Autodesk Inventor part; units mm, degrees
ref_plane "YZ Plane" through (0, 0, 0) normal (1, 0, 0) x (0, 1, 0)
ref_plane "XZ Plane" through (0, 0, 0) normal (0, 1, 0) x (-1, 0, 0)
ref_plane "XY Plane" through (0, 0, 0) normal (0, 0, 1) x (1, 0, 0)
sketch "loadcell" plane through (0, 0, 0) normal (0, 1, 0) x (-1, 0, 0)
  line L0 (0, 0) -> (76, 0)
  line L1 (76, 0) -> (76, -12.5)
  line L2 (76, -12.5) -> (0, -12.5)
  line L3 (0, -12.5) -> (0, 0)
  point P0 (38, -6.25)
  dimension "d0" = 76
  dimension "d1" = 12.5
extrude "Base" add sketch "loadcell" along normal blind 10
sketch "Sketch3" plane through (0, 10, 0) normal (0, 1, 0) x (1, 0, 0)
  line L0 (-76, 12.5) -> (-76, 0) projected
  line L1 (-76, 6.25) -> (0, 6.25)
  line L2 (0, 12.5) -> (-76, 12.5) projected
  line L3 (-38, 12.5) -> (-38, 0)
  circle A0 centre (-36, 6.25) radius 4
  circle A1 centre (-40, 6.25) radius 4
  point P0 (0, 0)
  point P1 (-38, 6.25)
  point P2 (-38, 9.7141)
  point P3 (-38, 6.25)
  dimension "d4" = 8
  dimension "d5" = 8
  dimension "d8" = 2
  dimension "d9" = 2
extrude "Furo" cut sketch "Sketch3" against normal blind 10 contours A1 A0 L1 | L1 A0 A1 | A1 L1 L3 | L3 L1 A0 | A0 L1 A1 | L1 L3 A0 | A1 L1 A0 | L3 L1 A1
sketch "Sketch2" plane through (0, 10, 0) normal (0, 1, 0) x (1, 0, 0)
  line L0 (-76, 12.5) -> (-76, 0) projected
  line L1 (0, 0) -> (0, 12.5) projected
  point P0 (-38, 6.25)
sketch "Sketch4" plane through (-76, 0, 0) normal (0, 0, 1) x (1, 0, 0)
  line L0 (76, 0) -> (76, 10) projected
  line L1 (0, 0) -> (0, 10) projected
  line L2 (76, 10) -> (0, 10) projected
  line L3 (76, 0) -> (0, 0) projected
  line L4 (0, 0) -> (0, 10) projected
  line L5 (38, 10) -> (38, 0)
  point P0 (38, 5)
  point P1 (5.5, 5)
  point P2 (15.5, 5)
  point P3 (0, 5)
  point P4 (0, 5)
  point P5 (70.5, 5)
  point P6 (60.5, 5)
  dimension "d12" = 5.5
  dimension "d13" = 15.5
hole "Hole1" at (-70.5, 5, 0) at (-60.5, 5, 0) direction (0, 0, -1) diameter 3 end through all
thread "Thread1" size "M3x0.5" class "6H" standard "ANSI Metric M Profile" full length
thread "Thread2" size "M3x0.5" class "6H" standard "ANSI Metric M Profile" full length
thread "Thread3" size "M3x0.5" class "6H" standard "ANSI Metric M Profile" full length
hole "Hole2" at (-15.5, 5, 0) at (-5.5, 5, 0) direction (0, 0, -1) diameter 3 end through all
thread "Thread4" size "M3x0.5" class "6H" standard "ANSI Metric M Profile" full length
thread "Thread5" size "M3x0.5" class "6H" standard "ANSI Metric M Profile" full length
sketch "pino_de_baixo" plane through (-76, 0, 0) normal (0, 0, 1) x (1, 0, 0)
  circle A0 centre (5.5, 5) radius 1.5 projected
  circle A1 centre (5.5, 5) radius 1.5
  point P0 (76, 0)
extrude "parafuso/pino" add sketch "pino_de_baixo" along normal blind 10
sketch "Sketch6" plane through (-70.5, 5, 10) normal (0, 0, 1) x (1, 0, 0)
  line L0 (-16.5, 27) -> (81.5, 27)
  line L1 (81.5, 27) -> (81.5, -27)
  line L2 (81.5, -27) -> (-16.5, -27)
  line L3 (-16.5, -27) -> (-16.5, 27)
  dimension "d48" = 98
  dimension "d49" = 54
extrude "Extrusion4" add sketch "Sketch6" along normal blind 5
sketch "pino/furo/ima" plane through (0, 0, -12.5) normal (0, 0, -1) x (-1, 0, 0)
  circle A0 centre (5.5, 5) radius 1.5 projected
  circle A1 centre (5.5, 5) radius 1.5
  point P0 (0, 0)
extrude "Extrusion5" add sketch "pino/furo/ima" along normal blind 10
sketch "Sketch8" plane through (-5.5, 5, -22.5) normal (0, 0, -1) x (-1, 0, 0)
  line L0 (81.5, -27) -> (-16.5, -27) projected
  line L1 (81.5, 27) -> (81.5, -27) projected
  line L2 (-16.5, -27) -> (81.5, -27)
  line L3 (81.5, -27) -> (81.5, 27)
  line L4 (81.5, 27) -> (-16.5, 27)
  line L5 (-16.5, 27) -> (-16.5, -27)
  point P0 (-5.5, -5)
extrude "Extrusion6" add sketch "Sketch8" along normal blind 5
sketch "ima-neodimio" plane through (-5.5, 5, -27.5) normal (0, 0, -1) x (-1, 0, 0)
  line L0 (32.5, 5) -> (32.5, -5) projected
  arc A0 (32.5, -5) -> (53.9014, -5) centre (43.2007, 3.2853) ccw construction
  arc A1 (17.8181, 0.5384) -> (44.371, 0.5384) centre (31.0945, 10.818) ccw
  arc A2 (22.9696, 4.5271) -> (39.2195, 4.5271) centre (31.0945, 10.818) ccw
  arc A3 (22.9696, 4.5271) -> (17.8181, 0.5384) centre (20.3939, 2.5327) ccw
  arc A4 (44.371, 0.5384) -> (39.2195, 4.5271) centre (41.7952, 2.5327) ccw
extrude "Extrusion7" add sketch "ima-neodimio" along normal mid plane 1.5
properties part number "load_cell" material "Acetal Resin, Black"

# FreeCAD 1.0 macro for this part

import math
import FreeCAD as App
import Part
import Sketcher

V = App.Vector
Q = App.Units.Quantity


def add_polygon(sketch, points):
    """Adds a closed chain of lines whose ends are joined by coincident constraints."""
    first, n = sketch.GeometryCount, len(points)
    for a, b in zip(points, points[1:] + points[:1]):
        sketch.addGeometry(Part.LineSegment(App.Vector(*a, 0), App.Vector(*b, 0)), False)
    for i in range(n):
        sketch.addConstraint(Sketcher.Constraint("Coincident", first + i, 2, first + (i + 1) % n, 1))

doc = App.newDocument("Part")
body = doc.addObject("PartDesign::Body", "Body")
body.AllowCompound = True

# Sketch on XZ plane
sketch1 = doc.addObject("Sketcher::SketchObject", "Sketch")
body.addObject(sketch1)
sketch1.AttachmentSupport = (doc.XZ_Plane, [""])
sketch1.MapMode = "FlatFace"
add_polygon(sketch1, [(-76, 0), (0, 0), (0, -12), (-76, -12)])  # lines 0-3
sketch1.addConstraint([
    Sketcher.Constraint("Horizontal", 0),
    Sketcher.Constraint("Vertical", 1),
    Sketcher.Constraint("Horizontal", 2),
    Sketcher.Constraint("Vertical", 3),
    Sketcher.Constraint("Coincident", 0, 2, -1, 1),
    Sketcher.Constraint("DistanceX", 0, 1, 0, 2, Q("76 mm")),
    Sketcher.Constraint("DistanceY", 1, 2, 1, 1, Q("12.5 mm")),
])
pad1 = doc.addObject("PartDesign::Pad", "Pad")
body.addObject(pad1)
pad1.Profile = sketch1
pad1.Length = 10
pad1.Reversed = True

# Sketch on XZ plane
sketch2 = doc.addObject("Sketcher::SketchObject", "Sketch001")
body.addObject(sketch2)
sketch2.AttachmentSupport = (doc.XZ_Plane, [""])
sketch2.MapMode = "FlatFace"
sketch2.AttachmentOffset = App.Placement(V(0, 0, -10), App.Rotation())
sketch2.addGeometry([
    Part.ArcOfCircle(Part.Circle(V(-40, -6.2, 0), V(0, 0, 1), 4), math.radians(60), math.radians(300)),
    Part.ArcOfCircle(Part.Circle(V(-36, -6.2, 0), V(0, 0, 1), 4), math.radians(-120), math.radians(120)),
], False)
sketch2.addConstraint([
    Sketcher.Constraint("Coincident", 0, 1, 1, 2),
    Sketcher.Constraint("Coincident", 1, 1, 0, 2),
    Sketcher.Constraint("Equal", 0, 1),
    Sketcher.Constraint("Horizontal", 0, 3, 1, 3),
    Sketcher.Constraint("Radius", 0, Q("4 mm")),
    Sketcher.Constraint("DistanceX", 0, 1, 1, 3, Q("2 mm")),
    Sketcher.Constraint("DistanceX", 0, 3, -1, 1, Q("40 mm")),
    Sketcher.Constraint("DistanceY", 0, 3, -1, 1, Q("6.25 mm")),
])
pocket1 = doc.addObject("PartDesign::Pocket", "Pocket")
body.addObject(pocket1)
pocket1.Profile = sketch2
pocket1.Length = 10
pocket1.Reversed = True

# Sketch on XY plane
sketch3 = doc.addObject("Sketcher::SketchObject", "Sketch002")
body.addObject(sketch3)
sketch3.AttachmentSupport = (doc.XY_Plane, [""])
sketch3.MapMode = "FlatFace"
sketch3.addGeometry([
    Part.Circle(V(-70.5, 5, 0), V(0, 0, 1), 1.5),
    Part.Circle(V(-60.5, 5, 0), V(0, 0, 1), 1.5),
], False)
sketch3.addConstraint([
    Sketcher.Constraint("Equal", 0, 1),
    Sketcher.Constraint("Horizontal", 0, 3, 1, 3),
    Sketcher.Constraint("Diameter", 0, Q("3 mm")),
    Sketcher.Constraint("DistanceY", -1, 1, 0, 3, Q("5 mm")),
    Sketcher.Constraint("DistanceX", 0, 3, 1, 3, Q("10 mm")),
    Sketcher.Constraint("DistanceX", 0, 3, -1, 1, Q("70.5 mm")),
])
doc.recompute()
hole = doc.addObject("PartDesign::Hole", "Hole")
body.addObject(hole)
hole.Profile = sketch3
hole.ThreadType = "None"
hole.Diameter = 3
hole.DepthType = "ThroughAll"

# Sketch on XY plane
sketch4 = doc.addObject("Sketcher::SketchObject", "Sketch003")
body.addObject(sketch4)
sketch4.AttachmentSupport = (doc.XY_Plane, [""])
sketch4.MapMode = "FlatFace"
sketch4.addGeometry([
    Part.Circle(V(-15.5, 5, 0), V(0, 0, 1), 1.5),
    Part.Circle(V(-5.5, 5, 0), V(0, 0, 1), 1.5),
], False)
sketch4.addConstraint([
    Sketcher.Constraint("Equal", 0, 1),
    Sketcher.Constraint("Horizontal", 0, 3, 1, 3),
    Sketcher.Constraint("Diameter", 0, Q("3 mm")),
    Sketcher.Constraint("DistanceY", -1, 1, 0, 3, Q("5 mm")),
    Sketcher.Constraint("DistanceX", 0, 3, 1, 3, Q("10 mm")),
    Sketcher.Constraint("DistanceX", 0, 3, -1, 1, Q("15.5 mm")),
])
doc.recompute()
hole2 = doc.addObject("PartDesign::Hole", "Hole001")
body.addObject(hole2)
hole2.Profile = sketch4
hole2.ThreadType = "None"
hole2.Diameter = 3
hole2.DepthType = "ThroughAll"

# Sketch on XY plane
sketch5 = doc.addObject("Sketcher::SketchObject", "Sketch004")
body.addObject(sketch5)
sketch5.AttachmentSupport = (doc.XY_Plane, [""])
sketch5.MapMode = "FlatFace"
sketch5.addGeometry(Part.Circle(V(-70.5, 5, 0), V(0, 0, 1), 1.5), False)
sketch5.addConstraint([
    Sketcher.Constraint("Diameter", 0, Q("3 mm")),
    Sketcher.Constraint("DistanceY", -1, 1, 0, 3, Q("5 mm")),
    Sketcher.Constraint("DistanceX", 0, 3, -1, 1, Q("70.5 mm")),
])
pad2 = doc.addObject("PartDesign::Pad", "Pad001")
body.addObject(pad2)
pad2.Profile = sketch5
pad2.Length = 10

# Sketch on XY plane
sketch6 = doc.addObject("Sketcher::SketchObject", "Sketch005")
body.addObject(sketch6)
sketch6.AttachmentSupport = (doc.XY_Plane, [""])
sketch6.MapMode = "FlatFace"
sketch6.AttachmentOffset = App.Placement(V(0, 0, 10), App.Rotation())
add_polygon(sketch6, [(11, 32), (-87, 32), (-87, -22), (11, -22)])  # lines 0-3
sketch6.addConstraint([
    Sketcher.Constraint("Horizontal", 0),
    Sketcher.Constraint("Vertical", 1),
    Sketcher.Constraint("Horizontal", 2),
    Sketcher.Constraint("Vertical", 3),
    Sketcher.Constraint("DistanceX", 0, 2, 0, 1, Q("98 mm")),
    Sketcher.Constraint("DistanceY", 1, 2, 1, 1, Q("54 mm")),
    Sketcher.Constraint("DistanceX", 0, 2, -1, 1, Q("87 mm")),
    Sketcher.Constraint("DistanceY", -1, 1, 0, 2, Q("32 mm")),
])
pad3 = doc.addObject("PartDesign::Pad", "Pad002")
body.addObject(pad3)
pad3.Profile = sketch6
pad3.Length = 5

# Sketch on XY plane
sketch7 = doc.addObject("Sketcher::SketchObject", "Sketch006")
body.addObject(sketch7)
sketch7.AttachmentSupport = (doc.XY_Plane, [""])
sketch7.MapMode = "FlatFace"
sketch7.AttachmentOffset = App.Placement(V(0, 0, -12.5), App.Rotation())
sketch7.addGeometry(Part.Circle(V(-5.5, 5, 0), V(0, 0, 1), 1.5), False)
sketch7.addConstraint([
    Sketcher.Constraint("Diameter", 0, Q("3 mm")),
    Sketcher.Constraint("DistanceY", -1, 1, 0, 3, Q("5 mm")),
    Sketcher.Constraint("DistanceX", 0, 3, -1, 1, Q("5.5 mm")),
])
pad4 = doc.addObject("PartDesign::Pad", "Pad003")
body.addObject(pad4)
pad4.Profile = sketch7
pad4.Length = 10
pad4.Reversed = True

# Sketch on XY plane
sketch8 = doc.addObject("Sketcher::SketchObject", "Sketch007")
body.addObject(sketch8)
sketch8.AttachmentSupport = (doc.XY_Plane, [""])
sketch8.MapMode = "FlatFace"
sketch8.AttachmentOffset = App.Placement(V(0, 0, -22.5), App.Rotation())
add_polygon(sketch8, [(11, -22), (-87, -22), (-87, 32), (11, 32)])  # lines 0-3
sketch8.addConstraint([
    Sketcher.Constraint("Horizontal", 0),
    Sketcher.Constraint("Vertical", 1),
    Sketcher.Constraint("Horizontal", 2),
    Sketcher.Constraint("Vertical", 3),
    Sketcher.Constraint("DistanceX", 0, 2, 0, 1, Q("98 mm")),
    Sketcher.Constraint("DistanceY", 1, 1, 1, 2, Q("54 mm")),
    Sketcher.Constraint("DistanceX", 0, 2, -1, 1, Q("87 mm")),
    Sketcher.Constraint("DistanceY", 0, 2, -1, 1, Q("22 mm")),
])
pad5 = doc.addObject("PartDesign::Pad", "Pad004")
body.addObject(pad5)
pad5.Profile = sketch8
pad5.Length = 5
pad5.Reversed = True

# Sketch on XY plane
sketch9 = doc.addObject("Sketcher::SketchObject", "Sketch008")
body.addObject(sketch9)
sketch9.AttachmentSupport = (doc.XY_Plane, [""])
sketch9.MapMode = "FlatFace"
sketch9.AttachmentOffset = App.Placement(V(0, 0, -27.5), App.Rotation())
sketch9.addGeometry([
    Part.ArcOfCircle(Part.Circle(V(-25.9, 7.5, 0), V(0, 0, 1), 3.3), math.radians(-38), math.radians(142)),
    Part.ArcOfCircle(Part.Circle(V(-36.6, 15.8, 0), V(0, 0, 1), 16.8), math.radians(-142), math.radians(-38)),
    Part.ArcOfCircle(Part.Circle(V(-47.3, 7.5, 0), V(0, 0, 1), 3.3), math.radians(38), math.radians(218)),
    Part.ArcOfCircle(Part.Circle(V(-36.6, 15.8, 0), V(0, 0, 1), 10.3), math.radians(-142), math.radians(-38)),
], False)
sketch9.addConstraint([
    Sketcher.Constraint("Tangent", 0, 1, 1, 2),
    Sketcher.Constraint("Tangent", 1, 1, 2, 2),
    Sketcher.Constraint("Tangent", 2, 1, 3, 1),
    Sketcher.Constraint("Tangent", 3, 2, 0, 2),
    Sketcher.Constraint("Coincident", 3, 3, 1, 3),
    Sketcher.Constraint("Horizontal", 0, 3, 2, 3),
    Sketcher.Constraint("Radius", 0, Q("3.2576 mm")),
    Sketcher.Constraint("Radius", 1, Q("16.7909 mm")),
    Sketcher.Constraint("DistanceX", 2, 1, 3, 2, Q("16.25 mm")),
    Sketcher.Constraint("DistanceX", 0, 3, -1, 1, Q("25.894 mm")),
    Sketcher.Constraint("DistanceY", -1, 1, 1, 3, Q("15.818 mm")),
])
pad6 = doc.addObject("PartDesign::Pad", "Pad005")
body.addObject(pad6)
pad6.Profile = sketch9
pad6.Length = 1.5
pad6.Midplane = True

doc.recompute()
